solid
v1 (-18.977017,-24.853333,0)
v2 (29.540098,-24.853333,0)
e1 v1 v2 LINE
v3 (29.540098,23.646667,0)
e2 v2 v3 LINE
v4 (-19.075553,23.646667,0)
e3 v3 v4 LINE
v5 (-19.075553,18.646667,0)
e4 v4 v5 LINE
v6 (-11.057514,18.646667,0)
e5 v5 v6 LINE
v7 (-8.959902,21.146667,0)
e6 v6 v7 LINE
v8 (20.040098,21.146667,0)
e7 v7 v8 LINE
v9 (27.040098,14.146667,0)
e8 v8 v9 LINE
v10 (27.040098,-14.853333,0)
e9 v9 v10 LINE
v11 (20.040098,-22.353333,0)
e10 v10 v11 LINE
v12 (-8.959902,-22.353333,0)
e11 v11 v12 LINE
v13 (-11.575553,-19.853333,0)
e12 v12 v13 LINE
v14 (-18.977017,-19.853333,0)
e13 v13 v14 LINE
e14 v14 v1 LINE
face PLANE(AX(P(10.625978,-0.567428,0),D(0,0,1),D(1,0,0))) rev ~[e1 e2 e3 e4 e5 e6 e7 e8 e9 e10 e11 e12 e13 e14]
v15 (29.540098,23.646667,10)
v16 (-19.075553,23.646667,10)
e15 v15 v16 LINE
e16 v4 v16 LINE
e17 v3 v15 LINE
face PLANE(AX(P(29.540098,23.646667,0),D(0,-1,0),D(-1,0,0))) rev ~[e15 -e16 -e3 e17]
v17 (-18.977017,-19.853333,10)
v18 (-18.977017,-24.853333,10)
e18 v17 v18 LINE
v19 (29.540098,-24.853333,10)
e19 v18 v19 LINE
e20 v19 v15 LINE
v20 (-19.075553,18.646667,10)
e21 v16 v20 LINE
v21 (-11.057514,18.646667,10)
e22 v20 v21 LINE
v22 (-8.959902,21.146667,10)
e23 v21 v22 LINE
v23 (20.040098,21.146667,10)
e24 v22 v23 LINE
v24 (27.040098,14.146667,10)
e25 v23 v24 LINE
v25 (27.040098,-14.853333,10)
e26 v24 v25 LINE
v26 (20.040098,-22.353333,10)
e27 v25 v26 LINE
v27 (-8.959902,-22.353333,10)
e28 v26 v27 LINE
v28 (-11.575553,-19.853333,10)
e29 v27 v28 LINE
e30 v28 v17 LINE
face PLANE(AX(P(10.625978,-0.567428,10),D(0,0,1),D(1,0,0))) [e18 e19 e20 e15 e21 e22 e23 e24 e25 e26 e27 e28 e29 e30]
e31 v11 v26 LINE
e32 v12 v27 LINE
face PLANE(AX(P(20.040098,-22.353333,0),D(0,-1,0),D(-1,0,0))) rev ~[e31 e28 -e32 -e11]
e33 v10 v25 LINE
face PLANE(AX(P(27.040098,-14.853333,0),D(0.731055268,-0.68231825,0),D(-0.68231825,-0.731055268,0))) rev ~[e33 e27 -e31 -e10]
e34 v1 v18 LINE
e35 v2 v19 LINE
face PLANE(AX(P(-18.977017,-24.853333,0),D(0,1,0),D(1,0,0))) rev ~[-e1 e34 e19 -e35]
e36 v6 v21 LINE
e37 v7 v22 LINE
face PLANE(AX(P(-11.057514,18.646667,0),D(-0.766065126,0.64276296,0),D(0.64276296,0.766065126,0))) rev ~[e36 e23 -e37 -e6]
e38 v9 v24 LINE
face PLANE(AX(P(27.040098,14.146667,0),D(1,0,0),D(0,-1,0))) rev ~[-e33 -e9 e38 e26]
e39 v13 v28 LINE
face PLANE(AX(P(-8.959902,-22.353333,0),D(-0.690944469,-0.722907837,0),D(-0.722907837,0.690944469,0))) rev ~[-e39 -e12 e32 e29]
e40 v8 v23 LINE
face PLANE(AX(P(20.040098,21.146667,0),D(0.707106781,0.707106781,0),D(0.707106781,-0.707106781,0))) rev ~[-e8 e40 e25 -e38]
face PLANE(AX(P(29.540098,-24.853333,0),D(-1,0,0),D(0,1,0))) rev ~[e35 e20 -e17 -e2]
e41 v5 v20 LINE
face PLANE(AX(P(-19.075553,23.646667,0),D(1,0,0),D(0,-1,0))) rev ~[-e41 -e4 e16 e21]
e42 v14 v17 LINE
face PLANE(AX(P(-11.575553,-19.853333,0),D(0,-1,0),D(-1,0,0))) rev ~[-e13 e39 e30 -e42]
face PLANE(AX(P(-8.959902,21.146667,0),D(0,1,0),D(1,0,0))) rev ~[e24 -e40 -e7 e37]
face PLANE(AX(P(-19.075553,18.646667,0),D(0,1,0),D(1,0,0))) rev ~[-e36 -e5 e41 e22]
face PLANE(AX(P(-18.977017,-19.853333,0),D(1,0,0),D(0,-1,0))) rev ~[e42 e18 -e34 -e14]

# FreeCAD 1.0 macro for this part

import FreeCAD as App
import Part
import Sketcher

V = App.Vector
Q = App.Units.Quantity

doc = App.newDocument("Part")
body = doc.addObject("PartDesign::Body", "Body")

# Sketch on XY plane
sketch1 = doc.addObject("Sketcher::SketchObject", "Sketch")
body.addObject(sketch1)
sketch1.AttachmentSupport = (doc.XY_Plane, [""])
sketch1.MapMode = "FlatFace"
sketch1.addGeometry([
    Part.LineSegment(V(-8.959902, 21.146667, 0), V(20.040098, 21.146667, 0)),  # 0
    Part.LineSegment(V(20.040098, 21.146667, 0), V(27.040098, 14.146667, 0)),  # 1
    Part.LineSegment(V(27.040098, 14.146667, 0), V(27.040098, -14.853333, 0)),  # 2
    Part.LineSegment(V(27.040098, -14.853333, 0), V(20.040098, -22.353333, 0)),  # 3
    Part.LineSegment(V(20.040098, -22.353333, 0), V(-8.959902, -22.353333, 0)),  # 4
    Part.LineSegment(V(-8.959902, -22.353333, 0), V(-11.575553, -19.853333, 0)),  # 5
    Part.LineSegment(V(-11.575553, -19.853333, 0), V(-18.977017, -19.853333, 0)),  # 6
    Part.LineSegment(V(-18.977017, -19.853333, 0), V(-18.977017, -24.853333, 0)),  # 7
    Part.LineSegment(V(-18.977017, -24.853333, 0), V(29.540098, -24.853333, 0)),  # 8
    Part.LineSegment(V(29.540098, -24.853333, 0), V(29.540098, 23.646667, 0)),  # 9
    Part.LineSegment(V(29.540098, 23.646667, 0), V(-19.075553, 23.646667, 0)),  # 10
    Part.LineSegment(V(-19.075553, 23.646667, 0), V(-19.075553, 18.646667, 0)),  # 11
    Part.LineSegment(V(-19.075553, 18.646667, 0), V(-11.057514, 18.646667, 0)),  # 12
    Part.LineSegment(V(-11.057514, 18.646667, 0), V(-8.959902, 21.146667, 0)),  # 13
], False)
sketch1.addConstraint([
    Sketcher.Constraint("Coincident", 0, 2, 1, 1),
    Sketcher.Constraint("Coincident", 1, 2, 2, 1),
    Sketcher.Constraint("Coincident", 2, 2, 3, 1),
    Sketcher.Constraint("Coincident", 3, 2, 4, 1),
    Sketcher.Constraint("Coincident", 4, 2, 5, 1),
    Sketcher.Constraint("Coincident", 5, 2, 6, 1),
    Sketcher.Constraint("Coincident", 6, 2, 7, 1),
    Sketcher.Constraint("Coincident", 7, 2, 8, 1),
    Sketcher.Constraint("Coincident", 8, 2, 9, 1),
    Sketcher.Constraint("Coincident", 9, 2, 10, 1),
    Sketcher.Constraint("Coincident", 10, 2, 11, 1),
    Sketcher.Constraint("Coincident", 11, 2, 12, 1),
    Sketcher.Constraint("Coincident", 12, 2, 13, 1),
    Sketcher.Constraint("Coincident", 13, 2, 0, 1),
    Sketcher.Constraint("Horizontal", 0),
    Sketcher.Constraint("Vertical", 2),
    Sketcher.Constraint("Horizontal", 4),
    Sketcher.Constraint("Horizontal", 6),
    Sketcher.Constraint("Vertical", 7),
    Sketcher.Constraint("Horizontal", 8),
    Sketcher.Constraint("Vertical", 9),
    Sketcher.Constraint("Horizontal", 10),
    Sketcher.Constraint("Vertical", 11),
    Sketcher.Constraint("Horizontal", 12),
    Sketcher.Constraint("Vertical", 0, 2, 3, 2),
    Sketcher.Constraint("Vertical", 4, 2, 13, 2),
    Sketcher.Constraint("Equal", 4, 2),
    Sketcher.Constraint("Equal", 7, 11),
    Sketcher.Constraint("DistanceX", 0, 1, 0, 2, 29.0),
    Sketcher.Constraint("DistanceY", 7, 2, 7, 1, 5.0),
    Sketcher.Constraint("Angle", 1, Q("-45 deg")),
    Sketcher.Constraint("DistanceY", 9, 1, 9, 2, 48.5),
    Sketcher.Constraint("DistanceX", 0, 2, 1, 2, 7.0),
    Sketcher.Constraint("DistanceY", 5, 2, 2, 2, 5.0),
    Sketcher.Constraint("DistanceY", 3, 2, 9, 2, 46.0),
    Sketcher.Constraint("DistanceX", 3, 2, 8, 2, 9.5),
    Sketcher.Constraint("DistanceX", 10, 2, 5, 2, 7.5),
    Sketcher.Constraint("DistanceX", 10, 2, 10, 1, 48.615651),
    Sketcher.Constraint("DistanceX", 12, 1, 12, 2, 8.018039),
    Sketcher.Constraint("DistanceX", -1, 1, 0, 2, 20.040098),
    Sketcher.Constraint("DistanceX", 6, 2, 6, 1, 7.401464),
    Sketcher.Constraint("DistanceY", -1, 1, 0, 2, 21.146667),
])
pad1 = doc.addObject("PartDesign::Pad", "Pad")
body.addObject(pad1)
pad1.Profile = sketch1
pad1.Length = 10

doc.recompute()
